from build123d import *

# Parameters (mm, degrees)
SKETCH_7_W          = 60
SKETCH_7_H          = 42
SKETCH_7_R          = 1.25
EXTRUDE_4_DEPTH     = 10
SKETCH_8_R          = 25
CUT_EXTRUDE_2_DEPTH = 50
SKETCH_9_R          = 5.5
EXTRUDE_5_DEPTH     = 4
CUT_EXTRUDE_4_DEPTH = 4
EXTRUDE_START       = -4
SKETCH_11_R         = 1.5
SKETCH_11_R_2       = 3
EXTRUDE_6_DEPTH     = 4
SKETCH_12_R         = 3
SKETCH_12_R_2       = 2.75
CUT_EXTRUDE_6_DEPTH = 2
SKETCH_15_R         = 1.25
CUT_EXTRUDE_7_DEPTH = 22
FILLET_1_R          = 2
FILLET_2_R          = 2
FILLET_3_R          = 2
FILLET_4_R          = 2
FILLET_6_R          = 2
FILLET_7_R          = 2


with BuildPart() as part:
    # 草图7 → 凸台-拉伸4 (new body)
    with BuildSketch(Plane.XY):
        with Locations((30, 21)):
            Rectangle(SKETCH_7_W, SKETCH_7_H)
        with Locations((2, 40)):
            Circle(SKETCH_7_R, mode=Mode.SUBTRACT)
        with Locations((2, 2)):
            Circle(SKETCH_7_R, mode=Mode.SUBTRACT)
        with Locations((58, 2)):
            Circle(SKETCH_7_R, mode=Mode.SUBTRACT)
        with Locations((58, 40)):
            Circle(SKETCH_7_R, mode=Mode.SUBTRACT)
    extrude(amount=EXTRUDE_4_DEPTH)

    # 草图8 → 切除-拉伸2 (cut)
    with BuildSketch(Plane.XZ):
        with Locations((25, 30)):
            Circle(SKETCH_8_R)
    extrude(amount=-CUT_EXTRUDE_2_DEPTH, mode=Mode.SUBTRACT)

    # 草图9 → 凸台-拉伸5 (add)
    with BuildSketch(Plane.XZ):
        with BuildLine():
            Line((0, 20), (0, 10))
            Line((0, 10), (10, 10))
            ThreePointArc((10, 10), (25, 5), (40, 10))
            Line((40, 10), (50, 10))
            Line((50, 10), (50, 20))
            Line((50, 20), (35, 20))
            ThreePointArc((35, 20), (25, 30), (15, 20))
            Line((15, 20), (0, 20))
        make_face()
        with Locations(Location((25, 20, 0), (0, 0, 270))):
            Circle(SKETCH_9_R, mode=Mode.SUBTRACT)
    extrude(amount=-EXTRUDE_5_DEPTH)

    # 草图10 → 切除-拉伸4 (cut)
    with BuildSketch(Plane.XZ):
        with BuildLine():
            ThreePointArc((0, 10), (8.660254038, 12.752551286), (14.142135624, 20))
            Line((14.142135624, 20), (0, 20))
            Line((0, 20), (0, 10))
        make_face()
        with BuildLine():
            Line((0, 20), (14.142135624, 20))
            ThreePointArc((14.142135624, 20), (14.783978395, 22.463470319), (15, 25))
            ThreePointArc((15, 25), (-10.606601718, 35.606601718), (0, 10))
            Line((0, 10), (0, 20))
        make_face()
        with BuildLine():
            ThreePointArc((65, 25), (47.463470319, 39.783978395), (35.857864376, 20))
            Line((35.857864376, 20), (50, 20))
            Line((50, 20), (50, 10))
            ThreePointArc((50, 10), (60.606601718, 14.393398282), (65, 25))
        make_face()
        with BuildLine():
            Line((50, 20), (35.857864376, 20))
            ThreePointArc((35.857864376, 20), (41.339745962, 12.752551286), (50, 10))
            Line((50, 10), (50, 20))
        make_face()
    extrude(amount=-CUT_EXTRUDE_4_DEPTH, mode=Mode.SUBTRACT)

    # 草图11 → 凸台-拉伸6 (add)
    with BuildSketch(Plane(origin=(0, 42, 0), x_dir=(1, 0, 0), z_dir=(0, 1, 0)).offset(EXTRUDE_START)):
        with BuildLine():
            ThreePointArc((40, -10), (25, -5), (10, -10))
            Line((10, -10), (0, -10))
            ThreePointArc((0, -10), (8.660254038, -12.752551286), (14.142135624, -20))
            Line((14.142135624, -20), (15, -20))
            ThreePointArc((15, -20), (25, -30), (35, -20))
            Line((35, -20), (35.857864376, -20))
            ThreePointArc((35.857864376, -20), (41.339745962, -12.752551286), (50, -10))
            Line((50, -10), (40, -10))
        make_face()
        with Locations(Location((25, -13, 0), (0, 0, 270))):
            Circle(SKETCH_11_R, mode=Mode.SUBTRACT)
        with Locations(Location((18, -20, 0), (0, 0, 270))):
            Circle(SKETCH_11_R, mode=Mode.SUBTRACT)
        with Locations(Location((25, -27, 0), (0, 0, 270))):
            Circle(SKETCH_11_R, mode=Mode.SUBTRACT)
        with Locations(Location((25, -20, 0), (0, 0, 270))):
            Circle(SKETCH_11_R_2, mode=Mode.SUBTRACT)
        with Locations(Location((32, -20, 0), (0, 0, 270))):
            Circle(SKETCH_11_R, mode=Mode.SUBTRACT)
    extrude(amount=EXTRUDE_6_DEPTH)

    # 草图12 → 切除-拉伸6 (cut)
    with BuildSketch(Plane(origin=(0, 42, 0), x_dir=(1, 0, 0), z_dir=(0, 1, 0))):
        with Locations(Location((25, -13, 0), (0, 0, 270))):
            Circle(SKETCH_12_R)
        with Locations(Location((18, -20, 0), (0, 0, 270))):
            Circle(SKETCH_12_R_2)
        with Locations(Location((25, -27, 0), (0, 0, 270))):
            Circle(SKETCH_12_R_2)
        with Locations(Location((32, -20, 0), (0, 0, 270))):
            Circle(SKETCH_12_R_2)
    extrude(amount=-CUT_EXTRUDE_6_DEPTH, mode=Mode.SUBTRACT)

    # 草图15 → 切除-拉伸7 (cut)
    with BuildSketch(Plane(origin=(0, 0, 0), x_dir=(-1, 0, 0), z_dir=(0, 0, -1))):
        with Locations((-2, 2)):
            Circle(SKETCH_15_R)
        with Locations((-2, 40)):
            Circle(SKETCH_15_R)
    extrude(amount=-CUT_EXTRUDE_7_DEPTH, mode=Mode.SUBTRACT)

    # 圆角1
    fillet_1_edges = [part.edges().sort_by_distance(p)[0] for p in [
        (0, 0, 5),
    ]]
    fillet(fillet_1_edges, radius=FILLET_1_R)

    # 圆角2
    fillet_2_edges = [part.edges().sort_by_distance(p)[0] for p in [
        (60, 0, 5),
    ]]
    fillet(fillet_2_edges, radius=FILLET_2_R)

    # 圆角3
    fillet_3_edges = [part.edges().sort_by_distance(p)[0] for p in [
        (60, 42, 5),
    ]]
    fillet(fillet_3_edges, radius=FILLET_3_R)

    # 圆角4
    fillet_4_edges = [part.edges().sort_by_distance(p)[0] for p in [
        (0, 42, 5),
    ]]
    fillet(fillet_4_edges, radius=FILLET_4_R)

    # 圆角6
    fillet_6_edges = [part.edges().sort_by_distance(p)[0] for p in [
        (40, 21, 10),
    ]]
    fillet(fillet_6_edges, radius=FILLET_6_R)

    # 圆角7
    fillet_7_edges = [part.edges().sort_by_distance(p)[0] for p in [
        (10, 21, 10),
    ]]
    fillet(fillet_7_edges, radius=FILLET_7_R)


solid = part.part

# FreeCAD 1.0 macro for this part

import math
import FreeCAD as App
import Part
import Sketcher

V = App.Vector
Q = App.Units.Quantity


def edges_at(feature, points):
    """Names of the edges that pass closest to the given points."""
    edges = feature.Shape.Edges
    near = lambda p: min(range(len(edges)), key=lambda i: edges[i].distToShape(Part.Vertex(*p))[0])
    return sorted({f"Edge{near(p) + 1}" for p in points})

doc = App.newDocument("Part")
body = doc.addObject("PartDesign::Body", "Body")

# Sketch on XY plane
sketch1 = body.newObject("Sketcher::SketchObject", "Sketch")
sketch1.AttachmentSupport = (doc.getObject("XY_Plane"), [""])
sketch1.MapMode = "FlatFace"
sketch1.addGeometry(Part.LineSegment(V(0, 42, 0), V(0, 0, 0)), False)
sketch1.addGeometry(Part.LineSegment(V(0, 0, 0), V(60, 0, 0)), False)
sketch1.addGeometry(Part.LineSegment(V(60, 0, 0), V(60, 42, 0)), False)
sketch1.addGeometry(Part.LineSegment(V(60, 42, 0), V(0, 42, 0)), False)
sketch1.addGeometry(Part.Circle(V(2, 2, 0), V(0, 0, 1), 1.25), False)
sketch1.addGeometry(Part.Circle(V(58, 2, 0), V(0, 0, 1), 1.25), False)
sketch1.addGeometry(Part.Circle(V(2, 40, 0), V(0, 0, 1), 1.25), False)
sketch1.addGeometry(Part.Circle(V(58, 40, 0), V(0, 0, 1), 1.25), False)
sketch1.addConstraint(Sketcher.Constraint("Coincident", 0, 2, 1, 1))
sketch1.addConstraint(Sketcher.Constraint("Coincident", 1, 2, 2, 1))
sketch1.addConstraint(Sketcher.Constraint("Coincident", 2, 2, 3, 1))
sketch1.addConstraint(Sketcher.Constraint("Coincident", 3, 2, 0, 1))
sketch1.addConstraint(Sketcher.Constraint("Vertical", 0))
sketch1.addConstraint(Sketcher.Constraint("Horizontal", 1))
sketch1.addConstraint(Sketcher.Constraint("Vertical", 2))
sketch1.addConstraint(Sketcher.Constraint("Horizontal", 3))
sketch1.addConstraint(Sketcher.Constraint("Coincident", 0, 2, -1, 1))
sketch1.addConstraint(Sketcher.Constraint("Equal", 4, 5))
sketch1.addConstraint(Sketcher.Constraint("Equal", 5, 6))
sketch1.addConstraint(Sketcher.Constraint("Equal", 6, 7))
sketch1.addConstraint(Sketcher.Constraint("Horizontal", 4, 3, 5, 3))
sketch1.addConstraint(Sketcher.Constraint("Horizontal", 6, 3, 7, 3))
sketch1.addConstraint(Sketcher.Constraint("Vertical", 4, 3, 6, 3))
sketch1.addConstraint(Sketcher.Constraint("Vertical", 5, 3, 7, 3))
sketch1.addConstraint(Sketcher.Constraint("Diameter", 4, Q("2.5 mm")))
sketch1.addConstraint(Sketcher.Constraint("DistanceX", 1, 1, 1, 2, Q("60 mm")))
sketch1.addConstraint(Sketcher.Constraint("DistanceY", 0, 2, 0, 1, Q("42 mm")))
sketch1.addConstraint(Sketcher.Constraint("DistanceX", -1, 1, 4, 3, Q("2 mm")))
sketch1.addConstraint(Sketcher.Constraint("DistanceY", -1, 1, 4, 3, Q("2 mm")))
sketch1.addConstraint(Sketcher.Constraint("DistanceX", -1, 1, 5, 3, Q("58 mm")))
sketch1.addConstraint(Sketcher.Constraint("DistanceY", -1, 1, 6, 3, Q("40 mm")))
pad1 = body.newObject("PartDesign::Pad", "Pad")
pad1.Profile = sketch1
pad1.Length = 10

# Sketch on XZ plane
sketch2 = body.newObject("Sketcher::SketchObject", "Sketch001")
sketch2.AttachmentSupport = (doc.getObject("XZ_Plane"), [""])
sketch2.MapMode = "FlatFace"
sketch2.addGeometry(Part.Circle(V(25, 30, 0), V(0, 0, 1), 25), False)
sketch2.addConstraint(Sketcher.Constraint("Diameter", 0, Q("50 mm")))
sketch2.addConstraint(Sketcher.Constraint("DistanceX", -1, 1, 0, 3, Q("25 mm")))
sketch2.addConstraint(Sketcher.Constraint("DistanceY", -1, 1, 0, 3, Q("30 mm")))
pocket1 = body.newObject("PartDesign::Pocket", "Pocket")
pocket1.Profile = sketch2
pocket1.Length = 50

# Sketch on XZ plane
sketch3 = body.newObject("Sketcher::SketchObject", "Sketch002")
sketch3.AttachmentSupport = (doc.getObject("XZ_Plane"), [""])
sketch3.MapMode = "FlatFace"
sketch3.addGeometry(Part.LineSegment(V(0, 20, 0), V(0, 10, 0)), False)
sketch3.addGeometry(Part.LineSegment(V(0, 10, 0), V(10, 10, 0)), False)
sketch3.addGeometry(Part.ArcOfCircle(Part.Circle(V(25, 30, 0), V(0, 0, 1), 25), math.radians(-126.869898), math.radians(-53.130102)), False)
sketch3.addGeometry(Part.LineSegment(V(40, 10, 0), V(50, 10, 0)), False)
sketch3.addGeometry(Part.LineSegment(V(50, 10, 0), V(50, 20, 0)), False)
sketch3.addGeometry(Part.LineSegment(V(50, 20, 0), V(35, 20, 0)), False)
sketch3.addGeometry(Part.ArcOfCircle(Part.Circle(V(25, 20, 0), V(0, 0, 1), 10), math.radians(0), math.radians(180)), False)
sketch3.addGeometry(Part.LineSegment(V(15, 20, 0), V(0, 20, 0)), False)
sketch3.addGeometry(Part.Circle(V(25, 20, 0), V(0, 0, 1), 5.5), False)
sketch3.addConstraint(Sketcher.Constraint("Coincident", 0, 2, 1, 1))
sketch3.addConstraint(Sketcher.Constraint("Coincident", 1, 2, 2, 1))
sketch3.addConstraint(Sketcher.Constraint("Coincident", 2, 2, 3, 1))
sketch3.addConstraint(Sketcher.Constraint("Coincident", 3, 2, 4, 1))
sketch3.addConstraint(Sketcher.Constraint("Coincident", 4, 2, 5, 1))
sketch3.addConstraint(Sketcher.Constraint("Coincident", 5, 2, 6, 1))
sketch3.addConstraint(Sketcher.Constraint("Coincident", 6, 2, 7, 1))
sketch3.addConstraint(Sketcher.Constraint("Coincident", 7, 2, 0, 1))
sketch3.addConstraint(Sketcher.Constraint("Vertical", 0))
sketch3.addConstraint(Sketcher.Constraint("Horizontal", 1))
sketch3.addConstraint(Sketcher.Constraint("Horizontal", 3))
sketch3.addConstraint(Sketcher.Constraint("Vertical", 4))
sketch3.addConstraint(Sketcher.Constraint("Horizontal", 5))
sketch3.addConstraint(Sketcher.Constraint("Horizontal", 7))
sketch3.addConstraint(Sketcher.Constraint("Coincident", 8, 3, 6, 3))
sketch3.addConstraint(Sketcher.Constraint("PointOnObject", 0, 2, -2))
sketch3.addConstraint(Sketcher.Constraint("Horizontal", 1, 2, 2, 2))
sketch3.addConstraint(Sketcher.Constraint("Horizontal", 8, 3, 4, 2))
sketch3.addConstraint(Sketcher.Constraint("Horizontal", 5, 2, 6, 2))
sketch3.addConstraint(Sketcher.Constraint("Vertical", 2, 3, 6, 3))
sketch3.addConstraint(Sketcher.Constraint("Equal", 1, 3))
sketch3.addConstraint(Sketcher.Constraint("Equal", 3, 0))
sketch3.addConstraint(Sketcher.Constraint("Diameter", 8, Q("11 mm")))
sketch3.addConstraint(Sketcher.Constraint("Radius", 2, Q("25 mm")))
sketch3.addConstraint(Sketcher.Constraint("Radius", 6, Q("10 mm")))
sketch3.addConstraint(Sketcher.Constraint("DistanceX", 1, 1, 1, 2, Q("10 mm")))
sketch3.addConstraint(Sketcher.Constraint("DistanceX", 5, 2, 5, 1, Q("15 mm")))
sketch3.addConstraint(Sketcher.Constraint("DistanceY", -1, 1, 2, 3, Q("30 mm")))
pad2 = body.newObject("PartDesign::Pad", "Pad001")
pad2.Profile = sketch3
pad2.Length = 4
pad2.Reversed = True

# Sketch on XZ plane
sketch4 = body.newObject("Sketcher::SketchObject", "Sketch003")
sketch4.AttachmentSupport = (doc.getObject("XZ_Plane"), [""])
sketch4.MapMode = "FlatFace"
sketch4.addGeometry(Part.ArcOfCircle(Part.Circle(V(0, 25, 0), V(0, 0, 1), 15), math.radians(-90), math.radians(-19.471221)), False)
sketch4.addGeometry(Part.ArcOfCircle(Part.Circle(V(0, 25, 0), V(0, 0, 1), 15), math.radians(-19.471221), math.radians(0)), False)
sketch4.addGeometry(Part.ArcOfCircle(Part.Circle(V(0, 25, 0), V(0, 0, 1), 15), math.radians(0), math.radians(270)), False)
sketch4.addGeometry(Part.ArcOfCircle(Part.Circle(V(50, 25, 0), V(0, 0, 1), 15), math.radians(0), math.radians(199.471221)), False)
sketch4.addGeometry(Part.ArcOfCircle(Part.Circle(V(50, 25, 0), V(0, 0, 1), 15), math.radians(-160.528779), math.radians(-90)), False)
sketch4.addGeometry(Part.ArcOfCircle(Part.Circle(V(50, 25, 0), V(0, 0, 1), 15), math.radians(-90), math.radians(0)), False)
sketch4.addConstraint(Sketcher.Constraint("Tangent", 0, 2, 1, 1))
sketch4.addConstraint(Sketcher.Constraint("Tangent", 1, 2, 2, 1))
sketch4.addConstraint(Sketcher.Constraint("Tangent", 2, 2, 0, 1))
sketch4.addConstraint(Sketcher.Constraint("Tangent", 3, 2, 4, 1))
sketch4.addConstraint(Sketcher.Constraint("Tangent", 4, 2, 5, 1))
sketch4.addConstraint(Sketcher.Constraint("Tangent", 5, 2, 3, 1))
sketch4.addConstraint(Sketcher.Constraint("Equal", 2, 3))
sketch4.addConstraint(Sketcher.Constraint("PointOnObject", 0, 3, -2))
sketch4.addConstraint(Sketcher.Constraint("PointOnObject", 2, 2, -2))
sketch4.addConstraint(Sketcher.Constraint("Horizontal", 2, 3, 3, 3))
sketch4.addConstraint(Sketcher.Constraint("Horizontal", 5, 3, 1, 2))
sketch4.addConstraint(Sketcher.Constraint("Horizontal", 0, 2, 3, 2))
sketch4.addConstraint(Sketcher.Constraint("Horizontal", 1, 2, 5, 2))
sketch4.addConstraint(Sketcher.Constraint("Vertical", 5, 3, 4, 2))
sketch4.addConstraint(Sketcher.Constraint("Radius", 0, Q("15 mm")))
sketch4.addConstraint(Sketcher.Constraint("DistanceY", -1, 1, 0, 3, Q("25 mm")))
sketch4.addConstraint(Sketcher.Constraint("DistanceX", -1, 1, 3, 3, Q("50 mm")))
sketch4.addConstraint(Sketcher.Constraint("DistanceY", -1, 1, 0, 2, Q("20 mm")))
pocket2 = body.newObject("PartDesign::Pocket", "Pocket001")
pocket2.Profile = sketch4
pocket2.Length = 4

# Sketch on XZ plane
sketch5 = body.newObject("Sketcher::SketchObject", "Sketch004")
sketch5.AttachmentSupport = (doc.getObject("XZ_Plane"), [""])
sketch5.MapMode = "FlatFace"
sketch5.AttachmentOffset = App.Placement(V(0, 0, -38), App.Rotation())
sketch5.addGeometry(Part.ArcOfCircle(Part.Circle(V(25, 30, 0), V(0, 0, 1), 25), math.radians(-126.869898), math.radians(-53.130102)), False)
sketch5.addGeometry(Part.LineSegment(V(10, 10, 0), V(0, 10, 0)), False)
sketch5.addGeometry(Part.ArcOfCircle(Part.Circle(V(0, 25, 0), V(0, 0, 1), 15), math.radians(-90), math.radians(-19.471221)), False)
sketch5.addGeometry(Part.LineSegment(V(14.142136, 20, 0), V(15, 20, 0)), False)
sketch5.addGeometry(Part.ArcOfCircle(Part.Circle(V(25, 20, 0), V(0, 0, 1), 10), math.radians(0), math.radians(180)), False)
sketch5.addGeometry(Part.LineSegment(V(35, 20, 0), V(35.857864, 20, 0)), False)
sketch5.addGeometry(Part.ArcOfCircle(Part.Circle(V(50, 25, 0), V(0, 0, 1), 15), math.radians(-160.528779), math.radians(-90)), False)
sketch5.addGeometry(Part.LineSegment(V(50, 10, 0), V(40, 10, 0)), False)
sketch5.addGeometry(Part.Circle(V(25, 27, 0), V(0, 0, 1), 1.5), False)
sketch5.addGeometry(Part.Circle(V(18, 20, 0), V(0, 0, 1), 1.5), False)
sketch5.addGeometry(Part.Circle(V(25, 20, 0), V(0, 0, 1), 3), False)
sketch5.addGeometry(Part.Circle(V(32, 20, 0), V(0, 0, 1), 1.5), False)
sketch5.addGeometry(Part.Circle(V(25, 13, 0), V(0, 0, 1), 1.5), False)
sketch5.addConstraint(Sketcher.Constraint("Coincident", 0, 1, 1, 1))
sketch5.addConstraint(Sketcher.Constraint("Tangent", 1, 2, 2, 1))
sketch5.addConstraint(Sketcher.Constraint("Coincident", 2, 2, 3, 1))
sketch5.addConstraint(Sketcher.Constraint("Coincident", 3, 2, 4, 2))
sketch5.addConstraint(Sketcher.Constraint("Coincident", 4, 1, 5, 1))
sketch5.addConstraint(Sketcher.Constraint("Coincident", 5, 2, 6, 1))
sketch5.addConstraint(Sketcher.Constraint("Tangent", 6, 2, 7, 1))
sketch5.addConstraint(Sketcher.Constraint("Coincident", 7, 2, 0, 2))
sketch5.addConstraint(Sketcher.Constraint("Horizontal", 1))
sketch5.addConstraint(Sketcher.Constraint("Horizontal", 3))
sketch5.addConstraint(Sketcher.Constraint("Horizontal", 5))
sketch5.addConstraint(Sketcher.Constraint("Horizontal", 7))
sketch5.addConstraint(Sketcher.Constraint("Coincident", 10, 3, 4, 3))
sketch5.addConstraint(Sketcher.Constraint("Equal", 2, 6))
sketch5.addConstraint(Sketcher.Constraint("Equal", 8, 9))
sketch5.addConstraint(Sketcher.Constraint("Equal", 9, 11))
sketch5.addConstraint(Sketcher.Constraint("Equal", 11, 12))
sketch5.addConstraint(Sketcher.Constraint("PointOnObject", 2, 3, -2))
sketch5.addConstraint(Sketcher.Constraint("Horizontal", 2, 3, 6, 3))
sketch5.addConstraint(Sketcher.Constraint("Horizontal", 4, 3, 9, 3))
sketch5.addConstraint(Sketcher.Constraint("Horizontal", 10, 3, 11, 3))
sketch5.addConstraint(Sketcher.Constraint("Horizontal", 11, 3, 2, 2))
sketch5.addConstraint(Sketcher.Constraint("Horizontal", 3, 2, 4, 1))
sketch5.addConstraint(Sketcher.Constraint("Vertical", 0, 3, 4, 3))
sketch5.addConstraint(Sketcher.Constraint("Vertical", 4, 3, 8, 3))
sketch5.addConstraint(Sketcher.Constraint("Vertical", 10, 3, 12, 3))
sketch5.addConstraint(Sketcher.Constraint("Equal", 3, 5))
sketch5.addConstraint(Sketcher.Constraint("Diameter", 8, Q("3 mm")))
sketch5.addConstraint(Sketcher.Constraint("Diameter", 10, Q("6 mm")))
sketch5.addConstraint(Sketcher.Constraint("Radius", 0, Q("25 mm")))
sketch5.addConstraint(Sketcher.Constraint("Radius", 2, Q("15 mm")))
sketch5.addConstraint(Sketcher.Constraint("Radius", 4, Q("10 mm")))
sketch5.addConstraint(Sketcher.Constraint("DistanceX", 1, 2, 1, 1, Q("10 mm")))
sketch5.addConstraint(Sketcher.Constraint("DistanceX", -1, 1, 0, 3, Q("25 mm")))
sketch5.addConstraint(Sketcher.Constraint("DistanceY", -1, 1, 0, 3, Q("30 mm")))
sketch5.addConstraint(Sketcher.Constraint("DistanceY", -1, 1, 4, 3, Q("20 mm")))
sketch5.addConstraint(Sketcher.Constraint("DistanceY", -1, 1, 8, 3, Q("27 mm")))
sketch5.addConstraint(Sketcher.Constraint("DistanceX", -1, 1, 9, 3, Q("18 mm")))
sketch5.addConstraint(Sketcher.Constraint("DistanceX", -1, 1, 11, 3, Q("32 mm")))
sketch5.addConstraint(Sketcher.Constraint("DistanceY", -1, 1, 12, 3, Q("13 mm")))
pad3 = body.newObject("PartDesign::Pad", "Pad002")
pad3.Profile = sketch5
pad3.Length = 4
pad3.Reversed = True

# Sketch on XZ plane
sketch6 = body.newObject("Sketcher::SketchObject", "Sketch005")
sketch6.AttachmentSupport = (doc.getObject("XZ_Plane"), [""])
sketch6.MapMode = "FlatFace"
sketch6.AttachmentOffset = App.Placement(V(0, 0, -42), App.Rotation())
sketch6.addGeometry(Part.Circle(V(25, 13, 0), V(0, 0, 1), 3), False)
sketch6.addGeometry(Part.Circle(V(18, 20, 0), V(0, 0, 1), 2.75), False)
sketch6.addGeometry(Part.Circle(V(25, 27, 0), V(0, 0, 1), 2.75), False)
sketch6.addGeometry(Part.Circle(V(32, 20, 0), V(0, 0, 1), 2.75), False)
sketch6.addConstraint(Sketcher.Constraint("Equal", 1, 2))
sketch6.addConstraint(Sketcher.Constraint("Equal", 2, 3))
sketch6.addConstraint(Sketcher.Constraint("Horizontal", 1, 3, 3, 3))
sketch6.addConstraint(Sketcher.Constraint("Vertical", 0, 3, 2, 3))
sketch6.addConstraint(Sketcher.Constraint("Diameter", 0, Q("6 mm")))
sketch6.addConstraint(Sketcher.Constraint("Diameter", 1, Q("5.5 mm")))
sketch6.addConstraint(Sketcher.Constraint("DistanceX", -1, 1, 0, 3, Q("25 mm")))
sketch6.addConstraint(Sketcher.Constraint("DistanceY", -1, 1, 0, 3, Q("13 mm")))
sketch6.addConstraint(Sketcher.Constraint("DistanceX", -1, 1, 1, 3, Q("18 mm")))
sketch6.addConstraint(Sketcher.Constraint("DistanceY", -1, 1, 1, 3, Q("20 mm")))
sketch6.addConstraint(Sketcher.Constraint("DistanceY", -1, 1, 2, 3, Q("27 mm")))
sketch6.addConstraint(Sketcher.Constraint("DistanceX", -1, 1, 3, 3, Q("32 mm")))
pocket3 = body.newObject("PartDesign::Pocket", "Pocket002")
pocket3.Profile = sketch6
pocket3.Length = 2
pocket3.Reversed = True

# Sketch on XY plane
sketch7 = body.newObject("Sketcher::SketchObject", "Sketch006")
sketch7.AttachmentSupport = (doc.getObject("XY_Plane"), [""])
sketch7.MapMode = "FlatFace"
sketch7.addGeometry(Part.Circle(V(2, 2, 0), V(0, 0, 1), 1.25), False)
sketch7.addGeometry(Part.Circle(V(2, 40, 0), V(0, 0, 1), 1.25), False)
sketch7.addConstraint(Sketcher.Constraint("Equal", 0, 1))
sketch7.addConstraint(Sketcher.Constraint("Vertical", 0, 3, 1, 3))
sketch7.addConstraint(Sketcher.Constraint("Diameter", 0, Q("2.5 mm")))
sketch7.addConstraint(Sketcher.Constraint("DistanceX", -1, 1, 0, 3, Q("2 mm")))
sketch7.addConstraint(Sketcher.Constraint("DistanceY", -1, 1, 0, 3, Q("2 mm")))
sketch7.addConstraint(Sketcher.Constraint("DistanceY", -1, 1, 1, 3, Q("40 mm")))
pocket4 = body.newObject("PartDesign::Pocket", "Pocket003")
pocket4.Profile = sketch7
pocket4.Length = 22
pocket4.Reversed = True
doc.recompute()

fillet = body.newObject("PartDesign::Fillet", "Fillet")
fillet.Base = (pocket4, edges_at(pocket4, [(0, 0, 5)]))
fillet.Radius = 2
doc.recompute()

fillet2 = body.newObject("PartDesign::Fillet", "Fillet001")
fillet2.Base = (fillet, edges_at(fillet, [(60, 0, 5)]))
fillet2.Radius = 2
doc.recompute()

fillet3 = body.newObject("PartDesign::Fillet", "Fillet002")
fillet3.Base = (fillet2, edges_at(fillet2, [(60, 42, 5)]))
fillet3.Radius = 2
doc.recompute()

fillet4 = body.newObject("PartDesign::Fillet", "Fillet003")
fillet4.Base = (fillet3, edges_at(fillet3, [(0, 42, 5)]))
fillet4.Radius = 2
doc.recompute()

fillet5 = body.newObject("PartDesign::Fillet", "Fillet004")
fillet5.Base = (fillet4, edges_at(fillet4, [(40, 21, 10)]))
fillet5.Radius = 2
doc.recompute()

fillet6 = body.newObject("PartDesign::Fillet", "Fillet005")
fillet6.Base = (fillet5, edges_at(fillet5, [(10, 21, 10)]))
fillet6.Radius = 2

doc.recompute()
